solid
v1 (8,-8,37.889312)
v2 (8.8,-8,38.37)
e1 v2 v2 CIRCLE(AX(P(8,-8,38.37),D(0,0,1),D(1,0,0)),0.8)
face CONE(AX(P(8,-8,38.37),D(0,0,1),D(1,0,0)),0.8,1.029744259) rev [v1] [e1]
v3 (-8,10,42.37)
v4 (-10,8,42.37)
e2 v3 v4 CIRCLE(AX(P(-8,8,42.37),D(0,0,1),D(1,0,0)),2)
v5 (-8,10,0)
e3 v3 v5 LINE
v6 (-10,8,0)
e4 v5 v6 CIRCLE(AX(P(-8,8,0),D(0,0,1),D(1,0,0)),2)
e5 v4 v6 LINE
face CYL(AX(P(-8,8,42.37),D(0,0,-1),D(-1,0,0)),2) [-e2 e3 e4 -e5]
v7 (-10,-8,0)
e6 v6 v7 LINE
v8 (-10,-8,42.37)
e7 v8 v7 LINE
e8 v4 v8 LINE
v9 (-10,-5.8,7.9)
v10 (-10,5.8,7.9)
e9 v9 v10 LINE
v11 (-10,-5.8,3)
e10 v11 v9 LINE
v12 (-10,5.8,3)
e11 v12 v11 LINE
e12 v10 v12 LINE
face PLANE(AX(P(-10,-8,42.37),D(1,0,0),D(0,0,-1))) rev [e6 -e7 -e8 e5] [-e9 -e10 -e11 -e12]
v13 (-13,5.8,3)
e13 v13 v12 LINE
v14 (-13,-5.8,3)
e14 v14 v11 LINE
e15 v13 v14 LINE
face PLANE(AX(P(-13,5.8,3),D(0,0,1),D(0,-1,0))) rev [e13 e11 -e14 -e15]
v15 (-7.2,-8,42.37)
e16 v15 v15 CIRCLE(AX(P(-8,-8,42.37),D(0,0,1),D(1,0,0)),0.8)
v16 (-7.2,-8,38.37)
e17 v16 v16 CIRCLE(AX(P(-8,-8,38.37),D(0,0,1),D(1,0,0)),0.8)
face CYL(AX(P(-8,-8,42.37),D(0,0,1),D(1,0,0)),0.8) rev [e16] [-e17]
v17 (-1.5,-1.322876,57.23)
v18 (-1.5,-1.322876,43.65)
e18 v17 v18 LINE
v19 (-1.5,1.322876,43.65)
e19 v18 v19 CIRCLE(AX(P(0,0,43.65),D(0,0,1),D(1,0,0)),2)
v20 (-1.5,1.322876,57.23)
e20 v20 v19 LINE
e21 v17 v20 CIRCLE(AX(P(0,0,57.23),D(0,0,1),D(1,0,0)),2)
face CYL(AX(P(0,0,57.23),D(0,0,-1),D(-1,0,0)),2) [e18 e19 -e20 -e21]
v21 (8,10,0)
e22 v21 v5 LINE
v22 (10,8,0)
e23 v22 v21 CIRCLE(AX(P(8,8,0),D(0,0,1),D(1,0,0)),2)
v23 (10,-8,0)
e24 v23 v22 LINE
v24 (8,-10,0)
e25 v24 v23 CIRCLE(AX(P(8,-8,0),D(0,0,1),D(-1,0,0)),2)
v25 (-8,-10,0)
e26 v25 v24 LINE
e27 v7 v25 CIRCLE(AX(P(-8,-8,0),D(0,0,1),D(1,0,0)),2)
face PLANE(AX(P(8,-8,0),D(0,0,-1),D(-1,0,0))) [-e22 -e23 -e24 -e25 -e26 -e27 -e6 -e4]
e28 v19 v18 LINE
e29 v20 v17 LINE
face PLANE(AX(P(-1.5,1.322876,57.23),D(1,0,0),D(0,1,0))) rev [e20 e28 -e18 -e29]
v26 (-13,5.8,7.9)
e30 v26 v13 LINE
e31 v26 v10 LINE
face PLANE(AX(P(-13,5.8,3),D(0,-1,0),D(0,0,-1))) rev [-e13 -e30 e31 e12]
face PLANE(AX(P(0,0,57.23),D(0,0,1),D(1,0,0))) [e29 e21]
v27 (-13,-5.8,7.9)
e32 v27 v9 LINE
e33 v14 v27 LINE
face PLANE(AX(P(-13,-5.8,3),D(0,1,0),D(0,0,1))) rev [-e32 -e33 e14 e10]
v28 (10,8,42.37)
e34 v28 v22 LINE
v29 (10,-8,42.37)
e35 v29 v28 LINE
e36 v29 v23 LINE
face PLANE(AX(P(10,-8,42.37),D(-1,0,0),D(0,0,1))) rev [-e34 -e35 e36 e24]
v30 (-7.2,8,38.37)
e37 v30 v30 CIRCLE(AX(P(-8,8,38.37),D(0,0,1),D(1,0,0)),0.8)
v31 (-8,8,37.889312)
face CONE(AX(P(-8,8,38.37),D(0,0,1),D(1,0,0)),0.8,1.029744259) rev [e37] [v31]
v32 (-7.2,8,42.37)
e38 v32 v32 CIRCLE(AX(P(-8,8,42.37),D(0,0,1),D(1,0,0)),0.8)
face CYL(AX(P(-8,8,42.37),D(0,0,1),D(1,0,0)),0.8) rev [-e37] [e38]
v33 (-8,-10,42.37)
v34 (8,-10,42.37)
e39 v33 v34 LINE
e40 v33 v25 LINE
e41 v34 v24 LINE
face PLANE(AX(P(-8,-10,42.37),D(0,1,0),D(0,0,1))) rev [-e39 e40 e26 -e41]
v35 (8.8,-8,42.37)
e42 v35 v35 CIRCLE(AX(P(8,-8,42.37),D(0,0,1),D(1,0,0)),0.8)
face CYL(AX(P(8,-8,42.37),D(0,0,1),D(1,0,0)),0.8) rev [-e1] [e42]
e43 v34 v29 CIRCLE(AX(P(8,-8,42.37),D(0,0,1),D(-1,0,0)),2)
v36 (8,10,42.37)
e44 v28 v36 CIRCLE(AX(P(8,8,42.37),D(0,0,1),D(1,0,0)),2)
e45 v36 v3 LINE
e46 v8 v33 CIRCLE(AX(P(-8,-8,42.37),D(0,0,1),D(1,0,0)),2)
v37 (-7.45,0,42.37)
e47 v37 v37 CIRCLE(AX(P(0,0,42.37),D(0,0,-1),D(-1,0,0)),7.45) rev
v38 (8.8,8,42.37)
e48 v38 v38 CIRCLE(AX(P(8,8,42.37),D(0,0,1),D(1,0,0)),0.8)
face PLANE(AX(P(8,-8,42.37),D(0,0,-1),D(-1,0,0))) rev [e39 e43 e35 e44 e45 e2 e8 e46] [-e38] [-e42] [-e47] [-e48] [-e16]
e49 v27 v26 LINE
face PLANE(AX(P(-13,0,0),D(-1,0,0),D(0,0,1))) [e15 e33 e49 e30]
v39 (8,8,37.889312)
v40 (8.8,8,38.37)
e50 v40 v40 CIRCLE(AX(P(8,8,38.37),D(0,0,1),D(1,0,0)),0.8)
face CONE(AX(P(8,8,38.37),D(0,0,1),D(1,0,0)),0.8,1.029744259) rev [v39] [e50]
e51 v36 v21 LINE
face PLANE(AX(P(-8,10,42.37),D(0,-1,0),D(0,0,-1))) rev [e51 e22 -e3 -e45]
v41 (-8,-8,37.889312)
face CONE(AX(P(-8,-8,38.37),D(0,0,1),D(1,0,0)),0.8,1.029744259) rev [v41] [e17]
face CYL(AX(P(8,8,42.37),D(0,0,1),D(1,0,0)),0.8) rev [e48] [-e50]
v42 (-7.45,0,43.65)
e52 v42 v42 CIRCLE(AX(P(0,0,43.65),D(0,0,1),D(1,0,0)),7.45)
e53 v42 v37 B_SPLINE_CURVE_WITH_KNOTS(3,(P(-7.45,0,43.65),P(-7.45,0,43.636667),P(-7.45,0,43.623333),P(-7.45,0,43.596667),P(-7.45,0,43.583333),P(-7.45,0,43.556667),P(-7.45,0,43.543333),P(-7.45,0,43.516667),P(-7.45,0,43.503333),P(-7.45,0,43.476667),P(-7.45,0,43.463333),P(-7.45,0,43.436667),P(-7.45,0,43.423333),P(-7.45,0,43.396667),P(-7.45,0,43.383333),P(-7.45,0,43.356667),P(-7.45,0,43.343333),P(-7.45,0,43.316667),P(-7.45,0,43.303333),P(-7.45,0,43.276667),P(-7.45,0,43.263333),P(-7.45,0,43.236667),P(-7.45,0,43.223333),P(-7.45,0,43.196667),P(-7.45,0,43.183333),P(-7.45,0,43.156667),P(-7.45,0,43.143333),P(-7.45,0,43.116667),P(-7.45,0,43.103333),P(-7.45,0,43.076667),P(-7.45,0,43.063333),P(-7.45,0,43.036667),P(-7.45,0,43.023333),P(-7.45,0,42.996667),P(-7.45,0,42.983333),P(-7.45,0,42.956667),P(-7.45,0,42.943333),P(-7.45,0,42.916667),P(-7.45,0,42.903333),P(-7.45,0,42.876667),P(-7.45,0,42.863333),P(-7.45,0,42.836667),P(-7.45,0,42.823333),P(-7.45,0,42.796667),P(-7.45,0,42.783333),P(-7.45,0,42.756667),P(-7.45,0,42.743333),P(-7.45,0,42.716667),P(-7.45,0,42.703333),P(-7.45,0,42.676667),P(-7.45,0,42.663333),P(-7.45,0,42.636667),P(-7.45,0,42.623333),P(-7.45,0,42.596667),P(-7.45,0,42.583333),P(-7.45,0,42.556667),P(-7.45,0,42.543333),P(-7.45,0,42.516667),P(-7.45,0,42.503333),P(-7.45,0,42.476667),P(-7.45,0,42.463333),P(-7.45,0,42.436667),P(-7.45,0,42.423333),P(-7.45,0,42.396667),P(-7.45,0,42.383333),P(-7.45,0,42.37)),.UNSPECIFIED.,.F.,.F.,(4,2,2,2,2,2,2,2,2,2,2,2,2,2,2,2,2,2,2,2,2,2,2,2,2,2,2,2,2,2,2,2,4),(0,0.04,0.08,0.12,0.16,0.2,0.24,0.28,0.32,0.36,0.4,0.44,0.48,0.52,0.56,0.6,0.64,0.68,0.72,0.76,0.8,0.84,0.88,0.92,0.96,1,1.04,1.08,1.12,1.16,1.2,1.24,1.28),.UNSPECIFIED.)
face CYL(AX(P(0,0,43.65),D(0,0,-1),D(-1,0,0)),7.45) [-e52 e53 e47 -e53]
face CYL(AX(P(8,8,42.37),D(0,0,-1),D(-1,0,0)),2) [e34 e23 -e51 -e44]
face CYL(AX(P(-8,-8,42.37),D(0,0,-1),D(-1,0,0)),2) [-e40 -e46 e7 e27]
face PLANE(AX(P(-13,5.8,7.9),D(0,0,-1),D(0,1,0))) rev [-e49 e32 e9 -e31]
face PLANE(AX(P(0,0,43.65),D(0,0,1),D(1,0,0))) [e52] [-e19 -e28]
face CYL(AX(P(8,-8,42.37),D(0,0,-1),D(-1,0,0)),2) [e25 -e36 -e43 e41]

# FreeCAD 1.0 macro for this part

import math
import FreeCAD as App
import Part
import Sketcher

V = App.Vector


def add_polygon(sketch, points):
    """Adds a closed chain of lines whose ends are joined by coincident constraints."""
    first, n = sketch.GeometryCount, len(points)
    for a, b in zip(points, points[1:] + points[:1]):
        sketch.addGeometry(Part.LineSegment(App.Vector(*a, 0), App.Vector(*b, 0)), False)
    for i in range(n):
        sketch.addConstraint(Sketcher.Constraint("Coincident", first + i, 2, first + (i + 1) % n, 1))

doc = App.newDocument("Part")
body = doc.addObject("PartDesign::Body", "Body")

sketch1 = body.newObject("Sketcher::SketchObject", "Sketch")
sketch1.AttachmentSupport = (doc.getObject("XY_Plane"), [""])
sketch1.MapMode = "FlatFace"
sketch1.addGeometry([
    Part.LineSegment(V(-8, -10, 0), V(8, -10, 0)),
    Part.ArcOfCircle(Part.Circle(V(8, -8, 0), V(0, 0, 1), 2), math.radians(-90), math.radians(0)),
    Part.LineSegment(V(10, -8, 0), V(10, 8, 0)),
    Part.ArcOfCircle(Part.Circle(V(8, 8, 0), V(0, 0, 1), 2), math.radians(0), math.radians(90)),
    Part.LineSegment(V(8, 10, 0), V(-8, 10, 0)),
    Part.ArcOfCircle(Part.Circle(V(-8, 8, 0), V(0, 0, 1), 2), math.radians(90), math.radians(180)),
    Part.LineSegment(V(-10, 8, 0), V(-10, -8, 0)),
    Part.ArcOfCircle(Part.Circle(V(-8, -8, 0), V(0, 0, 1), 2), math.radians(-180), math.radians(-90)),
], False)
sketch1.addConstraint([
    Sketcher.Constraint("Tangent", 0, 2, 1, 1),
    Sketcher.Constraint("Tangent", 1, 2, 2, 1),
    Sketcher.Constraint("Tangent", 2, 2, 3, 1),
    Sketcher.Constraint("Tangent", 3, 2, 4, 1),
    Sketcher.Constraint("Tangent", 4, 2, 5, 1),
    Sketcher.Constraint("Tangent", 5, 2, 6, 1),
    Sketcher.Constraint("Tangent", 6, 2, 7, 1),
    Sketcher.Constraint("Tangent", 7, 2, 0, 1),
    Sketcher.Constraint("Horizontal", 0),
    Sketcher.Constraint("Vertical", 2),
    Sketcher.Constraint("Horizontal", 4),
    Sketcher.Constraint("Vertical", 6),
    Sketcher.Constraint("Equal", 1, 3),
    Sketcher.Constraint("Equal", 3, 5),
    Sketcher.Constraint("Equal", 5, 7),
    Sketcher.Constraint("Symmetric", 1, 3, 5, 3, -1, 1),
    Sketcher.Constraint("Equal", 4, 2),
    Sketcher.Constraint("Radius", 1, 2.0),
    Sketcher.Constraint("DistanceX", 0, 1, 0, 2, 16.0),
])
pad1 = body.newObject("PartDesign::Pad", "Pad")
pad1.Profile = sketch1
pad1.Length = 42.37

sketch2 = body.newObject("Sketcher::SketchObject", "Sketch001")
sketch2.AttachmentSupport = (doc.getObject("XY_Plane"), [""])
sketch2.MapMode = "FlatFace"
sketch2.AttachmentOffset = App.Placement(V(0, 0, 42.37), App.Rotation())
sketch2.addGeometry(Part.Circle(V(0, 0, 0), V(0, 0, 1), 7.45), False)
sketch2.addConstraint([
    Sketcher.Constraint("Coincident", 0, 3, -1, 1),
    Sketcher.Constraint("Diameter", 0, 14.9),
])
pad2 = body.newObject("PartDesign::Pad", "Pad001")
pad2.Profile = sketch2
pad2.Length = 1.28

sketch3 = body.newObject("Sketcher::SketchObject", "Sketch002")
sketch3.AttachmentSupport = (doc.getObject("XY_Plane"), [""])
sketch3.MapMode = "FlatFace"
sketch3.AttachmentOffset = App.Placement(V(0, 0, 43.65), App.Rotation())
sketch3.addGeometry([
    Part.LineSegment(V(-1.5, 1.322876, 0), V(-1.5, -1.322876, 0)),
    Part.ArcOfCircle(Part.Circle(V(0, 0, 0), V(0, 0, 1), 2), math.radians(-138.590378), math.radians(138.590378)),
], False)
sketch3.addConstraint([
    Sketcher.Constraint("Coincident", 0, 1, 1, 2),
    Sketcher.Constraint("Coincident", 1, 1, 0, 2),
    Sketcher.Constraint("Vertical", 0),
    Sketcher.Constraint("Coincident", 1, 3, -1, 1),
    Sketcher.Constraint("Radius", 1, 2.0),
    Sketcher.Constraint("DistanceX", 0, 1, -1, 1, 1.5),
])
pad3 = body.newObject("PartDesign::Pad", "Pad002")
pad3.Profile = sketch3
pad3.Length = 13.58

sketch4 = body.newObject("Sketcher::SketchObject", "Sketch003")
sketch4.AttachmentSupport = (doc.getObject("YZ_Plane"), [""])
sketch4.MapMode = "FlatFace"
sketch4.AttachmentOffset = App.Placement(V(0, 0, -10), App.Rotation())
add_polygon(sketch4, [(5.8, 3), (-5.8, 3), (-5.8, 7.9), (5.8, 7.9)])
sketch4.addConstraint([
    Sketcher.Constraint("Horizontal", 0),
    Sketcher.Constraint("Vertical", 1),
    Sketcher.Constraint("Horizontal", 2),
    Sketcher.Constraint("Vertical", 3),
    Sketcher.Constraint("DistanceX", 0, 2, 0, 1, 11.6),
    Sketcher.Constraint("DistanceY", 1, 1, 1, 2, 4.9),
    Sketcher.Constraint("DistanceY", -1, 1, 0, 2, 3.0),
    Sketcher.Constraint("DistanceX", 0, 2, -1, 1, 5.8),
])
pad4 = body.newObject("PartDesign::Pad", "Pad003")
pad4.Profile = sketch4
pad4.Length = 3
pad4.Reversed = True

sketch5 = body.newObject("Sketcher::SketchObject", "Sketch004")
sketch5.AttachmentSupport = (doc.getObject("XY_Plane"), [""])
sketch5.MapMode = "FlatFace"
sketch5.AttachmentOffset = App.Placement(V(0, 0, 42.37), App.Rotation())
sketch5.addGeometry([
    Part.Circle(V(-8, -8, 0), V(0, 0, 1), 0.8),
    Part.Circle(V(8, -8, 0), V(0, 0, 1), 0.8),
    Part.Circle(V(8, 8, 0), V(0, 0, 1), 0.8),
    Part.Circle(V(-8, 8, 0), V(0, 0, 1), 0.8),
], False)
sketch5.addConstraint([
    Sketcher.Constraint("Equal", 0, 1),
    Sketcher.Constraint("Equal", 1, 2),
    Sketcher.Constraint("Equal", 2, 3),
    Sketcher.Constraint("Symmetric", 0, 3, 2, 3, -1, 1),
    Sketcher.Constraint("Symmetric", 1, 3, 3, 3, -1, 1),
    Sketcher.Constraint("Symmetric", 0, 3, 1, 3, -2),
    Sketcher.Constraint("Diameter", 0, 1.6),
    Sketcher.Constraint("DistanceX", 0, 3, -1, 1, 8.0),
    Sketcher.Constraint("DistanceY", 0, 3, -1, 1, 8.0),
])
doc.recompute()
hole = body.newObject("PartDesign::Hole", "Hole")
hole.Profile = sketch5
hole.ThreadType = "None"
hole.Diameter = 1.6
hole.DepthType = "Dimension"
hole.Depth = 4
hole.DrillPoint = "Angled"
hole.DrillPointAngle = 118

doc.recompute()
